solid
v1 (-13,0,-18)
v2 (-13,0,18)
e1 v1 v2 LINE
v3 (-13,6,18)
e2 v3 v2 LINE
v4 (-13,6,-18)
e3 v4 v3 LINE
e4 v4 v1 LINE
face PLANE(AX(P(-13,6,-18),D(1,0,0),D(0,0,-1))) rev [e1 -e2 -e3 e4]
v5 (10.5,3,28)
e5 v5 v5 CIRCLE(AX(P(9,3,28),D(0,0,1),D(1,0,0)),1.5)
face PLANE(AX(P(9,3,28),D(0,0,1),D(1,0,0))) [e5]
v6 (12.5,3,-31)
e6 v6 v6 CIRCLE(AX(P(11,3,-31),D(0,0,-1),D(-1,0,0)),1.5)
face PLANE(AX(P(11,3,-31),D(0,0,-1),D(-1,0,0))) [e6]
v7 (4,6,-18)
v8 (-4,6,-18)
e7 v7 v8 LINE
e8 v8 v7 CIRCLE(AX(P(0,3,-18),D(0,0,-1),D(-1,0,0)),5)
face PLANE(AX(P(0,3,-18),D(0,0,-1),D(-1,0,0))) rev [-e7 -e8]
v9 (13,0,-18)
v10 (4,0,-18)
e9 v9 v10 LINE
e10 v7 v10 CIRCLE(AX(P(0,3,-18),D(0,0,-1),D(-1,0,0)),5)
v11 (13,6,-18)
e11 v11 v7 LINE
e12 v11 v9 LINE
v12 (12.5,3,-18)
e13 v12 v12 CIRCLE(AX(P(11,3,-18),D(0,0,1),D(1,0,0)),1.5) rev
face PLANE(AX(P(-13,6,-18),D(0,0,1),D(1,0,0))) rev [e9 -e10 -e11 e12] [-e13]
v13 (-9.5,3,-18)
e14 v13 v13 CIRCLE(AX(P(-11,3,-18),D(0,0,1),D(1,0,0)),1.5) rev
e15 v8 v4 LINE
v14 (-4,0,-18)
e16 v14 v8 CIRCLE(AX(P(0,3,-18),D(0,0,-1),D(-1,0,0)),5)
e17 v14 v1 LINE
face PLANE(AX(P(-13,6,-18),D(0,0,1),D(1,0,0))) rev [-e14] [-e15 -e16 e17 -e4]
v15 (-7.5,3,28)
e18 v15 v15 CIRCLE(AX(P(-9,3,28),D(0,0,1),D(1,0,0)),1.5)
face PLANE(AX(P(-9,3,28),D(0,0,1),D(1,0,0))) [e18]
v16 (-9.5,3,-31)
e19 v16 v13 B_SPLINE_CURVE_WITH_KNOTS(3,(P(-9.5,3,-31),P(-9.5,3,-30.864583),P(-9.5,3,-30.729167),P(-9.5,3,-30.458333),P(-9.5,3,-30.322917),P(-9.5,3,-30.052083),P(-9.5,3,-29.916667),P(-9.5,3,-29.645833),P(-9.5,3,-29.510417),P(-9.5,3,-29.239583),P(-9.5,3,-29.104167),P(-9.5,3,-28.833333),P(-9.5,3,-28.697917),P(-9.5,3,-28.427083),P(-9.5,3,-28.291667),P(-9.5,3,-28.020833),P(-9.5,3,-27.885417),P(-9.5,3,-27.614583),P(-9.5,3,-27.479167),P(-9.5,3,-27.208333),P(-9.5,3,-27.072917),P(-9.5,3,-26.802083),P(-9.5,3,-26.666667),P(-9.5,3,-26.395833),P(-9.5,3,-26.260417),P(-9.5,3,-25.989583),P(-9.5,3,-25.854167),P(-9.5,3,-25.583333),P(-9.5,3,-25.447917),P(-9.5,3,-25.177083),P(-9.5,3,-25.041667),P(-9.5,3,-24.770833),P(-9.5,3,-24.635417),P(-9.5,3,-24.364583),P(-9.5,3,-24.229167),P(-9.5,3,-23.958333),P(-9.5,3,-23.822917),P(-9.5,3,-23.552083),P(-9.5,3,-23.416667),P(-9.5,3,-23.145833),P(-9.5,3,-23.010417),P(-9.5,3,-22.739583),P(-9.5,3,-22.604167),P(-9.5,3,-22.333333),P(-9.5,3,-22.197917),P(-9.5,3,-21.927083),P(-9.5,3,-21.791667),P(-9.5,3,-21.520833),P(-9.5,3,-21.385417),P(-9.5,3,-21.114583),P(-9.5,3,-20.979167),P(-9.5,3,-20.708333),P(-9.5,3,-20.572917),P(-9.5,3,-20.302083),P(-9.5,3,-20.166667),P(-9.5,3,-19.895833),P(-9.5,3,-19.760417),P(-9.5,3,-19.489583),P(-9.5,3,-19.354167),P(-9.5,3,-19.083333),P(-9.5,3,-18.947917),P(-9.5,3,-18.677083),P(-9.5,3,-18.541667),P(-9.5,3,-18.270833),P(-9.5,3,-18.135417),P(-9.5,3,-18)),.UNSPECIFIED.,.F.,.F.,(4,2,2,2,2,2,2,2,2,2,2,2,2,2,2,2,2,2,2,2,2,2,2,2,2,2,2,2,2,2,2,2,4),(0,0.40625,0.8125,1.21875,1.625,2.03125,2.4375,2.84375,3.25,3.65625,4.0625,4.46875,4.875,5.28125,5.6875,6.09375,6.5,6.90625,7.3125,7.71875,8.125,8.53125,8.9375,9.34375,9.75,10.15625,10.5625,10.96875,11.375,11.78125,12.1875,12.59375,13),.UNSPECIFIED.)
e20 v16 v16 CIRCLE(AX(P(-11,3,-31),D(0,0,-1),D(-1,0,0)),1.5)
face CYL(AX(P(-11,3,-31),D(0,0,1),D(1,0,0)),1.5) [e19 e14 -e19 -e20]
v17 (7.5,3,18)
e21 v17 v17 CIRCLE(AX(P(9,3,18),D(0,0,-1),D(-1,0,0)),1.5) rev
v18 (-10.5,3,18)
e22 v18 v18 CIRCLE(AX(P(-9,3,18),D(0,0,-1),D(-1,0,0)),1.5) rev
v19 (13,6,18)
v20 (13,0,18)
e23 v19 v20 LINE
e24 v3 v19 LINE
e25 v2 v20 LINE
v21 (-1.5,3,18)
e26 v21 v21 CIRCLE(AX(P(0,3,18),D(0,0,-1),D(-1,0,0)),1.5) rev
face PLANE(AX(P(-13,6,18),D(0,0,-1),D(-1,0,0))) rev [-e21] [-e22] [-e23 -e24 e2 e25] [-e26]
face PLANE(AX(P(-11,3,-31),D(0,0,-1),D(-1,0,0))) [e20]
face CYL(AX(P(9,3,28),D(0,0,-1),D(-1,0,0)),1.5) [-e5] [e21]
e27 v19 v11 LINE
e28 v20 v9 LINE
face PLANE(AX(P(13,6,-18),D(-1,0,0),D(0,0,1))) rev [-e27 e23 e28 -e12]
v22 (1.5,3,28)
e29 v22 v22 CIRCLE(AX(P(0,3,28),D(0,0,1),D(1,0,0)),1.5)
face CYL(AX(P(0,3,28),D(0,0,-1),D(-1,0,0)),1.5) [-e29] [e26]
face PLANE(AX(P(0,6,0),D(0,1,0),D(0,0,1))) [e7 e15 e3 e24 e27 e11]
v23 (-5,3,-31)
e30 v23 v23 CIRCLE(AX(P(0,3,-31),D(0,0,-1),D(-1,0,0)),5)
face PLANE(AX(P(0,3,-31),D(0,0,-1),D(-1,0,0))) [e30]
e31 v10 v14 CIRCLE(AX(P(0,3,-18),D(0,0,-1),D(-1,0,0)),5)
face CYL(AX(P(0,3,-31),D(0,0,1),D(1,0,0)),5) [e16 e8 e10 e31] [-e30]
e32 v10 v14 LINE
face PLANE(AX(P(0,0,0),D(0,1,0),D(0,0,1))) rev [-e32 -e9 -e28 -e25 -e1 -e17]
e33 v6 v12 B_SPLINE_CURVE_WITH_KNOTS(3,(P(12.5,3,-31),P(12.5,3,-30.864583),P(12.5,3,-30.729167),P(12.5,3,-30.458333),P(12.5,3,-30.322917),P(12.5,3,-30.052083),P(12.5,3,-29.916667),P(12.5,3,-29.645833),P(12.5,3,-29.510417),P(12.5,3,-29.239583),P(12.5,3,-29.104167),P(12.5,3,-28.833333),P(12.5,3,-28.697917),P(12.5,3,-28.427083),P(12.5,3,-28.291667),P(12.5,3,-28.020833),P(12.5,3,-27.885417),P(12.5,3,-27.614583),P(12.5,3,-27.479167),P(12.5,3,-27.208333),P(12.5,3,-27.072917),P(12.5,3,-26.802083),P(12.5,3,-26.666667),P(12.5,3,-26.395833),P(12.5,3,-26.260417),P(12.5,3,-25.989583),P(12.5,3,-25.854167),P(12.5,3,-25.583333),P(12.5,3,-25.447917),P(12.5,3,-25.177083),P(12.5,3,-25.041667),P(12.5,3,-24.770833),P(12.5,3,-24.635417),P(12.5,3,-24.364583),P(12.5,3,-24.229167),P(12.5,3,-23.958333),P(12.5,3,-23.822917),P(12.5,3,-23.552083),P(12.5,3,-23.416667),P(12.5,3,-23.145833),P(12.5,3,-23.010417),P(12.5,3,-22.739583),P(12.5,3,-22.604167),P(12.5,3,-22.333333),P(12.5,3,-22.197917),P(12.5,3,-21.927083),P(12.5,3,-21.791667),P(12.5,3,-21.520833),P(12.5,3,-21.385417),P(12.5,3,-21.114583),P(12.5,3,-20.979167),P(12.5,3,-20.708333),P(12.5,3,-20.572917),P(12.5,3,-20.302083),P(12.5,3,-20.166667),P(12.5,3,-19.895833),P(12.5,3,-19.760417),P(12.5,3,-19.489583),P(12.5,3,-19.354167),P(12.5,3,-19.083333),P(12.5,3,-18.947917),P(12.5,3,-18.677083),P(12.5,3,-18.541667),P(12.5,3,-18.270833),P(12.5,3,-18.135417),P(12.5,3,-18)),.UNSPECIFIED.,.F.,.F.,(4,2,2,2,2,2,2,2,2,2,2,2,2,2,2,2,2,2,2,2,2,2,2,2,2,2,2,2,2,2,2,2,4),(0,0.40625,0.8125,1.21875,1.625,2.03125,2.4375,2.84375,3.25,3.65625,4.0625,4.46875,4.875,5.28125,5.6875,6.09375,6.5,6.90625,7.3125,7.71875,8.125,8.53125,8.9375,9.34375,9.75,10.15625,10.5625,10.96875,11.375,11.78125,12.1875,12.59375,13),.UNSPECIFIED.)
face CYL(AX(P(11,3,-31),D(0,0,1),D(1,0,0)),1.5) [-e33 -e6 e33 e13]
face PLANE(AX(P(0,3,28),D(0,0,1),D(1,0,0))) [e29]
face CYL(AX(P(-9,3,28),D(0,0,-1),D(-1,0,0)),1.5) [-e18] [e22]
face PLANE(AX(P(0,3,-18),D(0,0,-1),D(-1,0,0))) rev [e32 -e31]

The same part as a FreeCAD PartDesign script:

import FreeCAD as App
import Part
import Sketcher
from FreeCAD import Vector


def add_polygon(sketch, points):
    """Adds a closed chain of lines whose ends are joined by coincident constraints."""
    first, n = sketch.GeometryCount, len(points)
    for a, b in zip(points, points[1:] + points[:1]):
        sketch.addGeometry(Part.LineSegment(App.Vector(*a, 0), App.Vector(*b, 0)), False)
    for i in range(n):
        sketch.addConstraint(Sketcher.Constraint("Coincident", first + i, 2, first + (i + 1) % n, 1))

doc = App.newDocument("Part")
params = doc.addObject("Spreadsheet::Sheet", "Params")
for row, (alias, value) in enumerate([
    ("sketch1_width", "26 mm"),
    ("sketch1_height", "36 mm"),
    ("pad1_length", "6 mm"),
    ("sketch2_diameter", "3 mm"),
    ("pad2_length", "10 mm"),
    ("sketch3_diameter", "10 mm"),
    ("sketch3_diameter2", "3 mm"),
    ("pad3_length", "13 mm"),
], start=1):
    params.set(f"A{row}", alias)
    params.set(f"B{row}", "=" + value)
    params.setAlias(f"B{row}", alias)

body = doc.addObject("PartDesign::Body", "Body")

# Sketch on XZ plane
sketch1 = body.newObject("Sketcher::SketchObject", "Sketch")
sketch1.AttachmentSupport = (doc.getObject("XZ_Plane"), [""])
sketch1.MapMode = "FlatFace"
add_polygon(sketch1, [(-13, -18), (-13, 18), (13, 18), (13, -18)])  # lines 0-3
sketch1.addConstraint([
    Sketcher.Constraint("Vertical", 0),
    Sketcher.Constraint("Horizontal", 1),
    Sketcher.Constraint("Vertical", 2),
    Sketcher.Constraint("Horizontal", 3),
    Sketcher.Constraint("Symmetric", 0, 2, 2, 2, -1, 1),
    Sketcher.Constraint("DistanceX", 1, 1, 1, 2, 26.0),
    Sketcher.Constraint("DistanceY", 0, 1, 0, 2, 36.0),
])
sketch1.setExpression("Constraints[9]", "Params.sketch1_width")
sketch1.setExpression("Constraints[10]", "Params.sketch1_height")
pad1 = body.newObject("PartDesign::Pad", "Pad")
pad1.Profile = sketch1
pad1.setExpression("Length", "Params.pad1_length")
pad1.Reversed = True

# Sketch on XY plane
sketch2 = body.newObject("Sketcher::SketchObject", "Sketch001")
sketch2.AttachmentSupport = (doc.getObject("XY_Plane"), [""])
sketch2.MapMode = "FlatFace"
sketch2.AttachmentOffset = App.Placement(Vector(0, 0, 18), App.Rotation())
sketch2.addGeometry([
    Part.Circle(Vector(0, 3, 0), Vector(0, 0, 1), 1.5),
    Part.Circle(Vector(-9, 3, 0), Vector(0, 0, 1), 1.5),
    Part.Circle(Vector(9, 3, 0), Vector(0, 0, 1), 1.5),
], False)
sketch2.addConstraint([
    Sketcher.Constraint("Equal", 0, 1),
    Sketcher.Constraint("Equal", 1, 2),
    Sketcher.Constraint("Symmetric", 1, 3, 2, 3, -2),
    Sketcher.Constraint("PointOnObject", 0, 3, -2),
    Sketcher.Constraint("Horizontal", 0, 3, 1, 3),
    Sketcher.Constraint("Diameter", 0, 3.0),
    Sketcher.Constraint("DistanceY", -1, 1, 0, 3, 3.0),
    Sketcher.Constraint("DistanceX", 1, 3, -1, 1, 9.0),
])
sketch2.setExpression("Constraints[5]", "Params.sketch2_diameter")
pad2 = body.newObject("PartDesign::Pad", "Pad001")
pad2.Profile = sketch2
pad2.setExpression("Length", "Params.pad2_length")

# Sketch on XY plane
sketch3 = body.newObject("Sketcher::SketchObject", "Sketch002")
sketch3.AttachmentSupport = (doc.getObject("XY_Plane"), [""])
sketch3.MapMode = "FlatFace"
sketch3.AttachmentOffset = App.Placement(Vector(0, 0, -18), App.Rotation())
sketch3.addGeometry([
    Part.Circle(Vector(0, 3, 0), Vector(0, 0, 1), 5),
    Part.Circle(Vector(11, 3, 0), Vector(0, 0, 1), 1.5),
    Part.Circle(Vector(-11, 3, 0), Vector(0, 0, 1), 1.5),
], False)
sketch3.addConstraint([
    Sketcher.Constraint("Equal", 1, 2),
    Sketcher.Constraint("Symmetric", 1, 3, 2, 3, -2),
    Sketcher.Constraint("PointOnObject", 0, 3, -2),
    Sketcher.Constraint("Horizontal", 0, 3, 1, 3),
    Sketcher.Constraint("Diameter", 0, 10.0),
    Sketcher.Constraint("Diameter", 1, 3.0),
    Sketcher.Constraint("DistanceY", -1, 1, 0, 3, 3.0),
    Sketcher.Constraint("DistanceX", -1, 1, 1, 3, 11.0),
])
sketch3.setExpression("Constraints[4]", "Params.sketch3_diameter")
sketch3.setExpression("Constraints[5]", "Params.sketch3_diameter2")
pad3 = body.newObject("PartDesign::Pad", "Pad002")
pad3.Profile = sketch3
pad3.setExpression("Length", "Params.pad3_length")
pad3.Reversed = True

doc.recompute()
